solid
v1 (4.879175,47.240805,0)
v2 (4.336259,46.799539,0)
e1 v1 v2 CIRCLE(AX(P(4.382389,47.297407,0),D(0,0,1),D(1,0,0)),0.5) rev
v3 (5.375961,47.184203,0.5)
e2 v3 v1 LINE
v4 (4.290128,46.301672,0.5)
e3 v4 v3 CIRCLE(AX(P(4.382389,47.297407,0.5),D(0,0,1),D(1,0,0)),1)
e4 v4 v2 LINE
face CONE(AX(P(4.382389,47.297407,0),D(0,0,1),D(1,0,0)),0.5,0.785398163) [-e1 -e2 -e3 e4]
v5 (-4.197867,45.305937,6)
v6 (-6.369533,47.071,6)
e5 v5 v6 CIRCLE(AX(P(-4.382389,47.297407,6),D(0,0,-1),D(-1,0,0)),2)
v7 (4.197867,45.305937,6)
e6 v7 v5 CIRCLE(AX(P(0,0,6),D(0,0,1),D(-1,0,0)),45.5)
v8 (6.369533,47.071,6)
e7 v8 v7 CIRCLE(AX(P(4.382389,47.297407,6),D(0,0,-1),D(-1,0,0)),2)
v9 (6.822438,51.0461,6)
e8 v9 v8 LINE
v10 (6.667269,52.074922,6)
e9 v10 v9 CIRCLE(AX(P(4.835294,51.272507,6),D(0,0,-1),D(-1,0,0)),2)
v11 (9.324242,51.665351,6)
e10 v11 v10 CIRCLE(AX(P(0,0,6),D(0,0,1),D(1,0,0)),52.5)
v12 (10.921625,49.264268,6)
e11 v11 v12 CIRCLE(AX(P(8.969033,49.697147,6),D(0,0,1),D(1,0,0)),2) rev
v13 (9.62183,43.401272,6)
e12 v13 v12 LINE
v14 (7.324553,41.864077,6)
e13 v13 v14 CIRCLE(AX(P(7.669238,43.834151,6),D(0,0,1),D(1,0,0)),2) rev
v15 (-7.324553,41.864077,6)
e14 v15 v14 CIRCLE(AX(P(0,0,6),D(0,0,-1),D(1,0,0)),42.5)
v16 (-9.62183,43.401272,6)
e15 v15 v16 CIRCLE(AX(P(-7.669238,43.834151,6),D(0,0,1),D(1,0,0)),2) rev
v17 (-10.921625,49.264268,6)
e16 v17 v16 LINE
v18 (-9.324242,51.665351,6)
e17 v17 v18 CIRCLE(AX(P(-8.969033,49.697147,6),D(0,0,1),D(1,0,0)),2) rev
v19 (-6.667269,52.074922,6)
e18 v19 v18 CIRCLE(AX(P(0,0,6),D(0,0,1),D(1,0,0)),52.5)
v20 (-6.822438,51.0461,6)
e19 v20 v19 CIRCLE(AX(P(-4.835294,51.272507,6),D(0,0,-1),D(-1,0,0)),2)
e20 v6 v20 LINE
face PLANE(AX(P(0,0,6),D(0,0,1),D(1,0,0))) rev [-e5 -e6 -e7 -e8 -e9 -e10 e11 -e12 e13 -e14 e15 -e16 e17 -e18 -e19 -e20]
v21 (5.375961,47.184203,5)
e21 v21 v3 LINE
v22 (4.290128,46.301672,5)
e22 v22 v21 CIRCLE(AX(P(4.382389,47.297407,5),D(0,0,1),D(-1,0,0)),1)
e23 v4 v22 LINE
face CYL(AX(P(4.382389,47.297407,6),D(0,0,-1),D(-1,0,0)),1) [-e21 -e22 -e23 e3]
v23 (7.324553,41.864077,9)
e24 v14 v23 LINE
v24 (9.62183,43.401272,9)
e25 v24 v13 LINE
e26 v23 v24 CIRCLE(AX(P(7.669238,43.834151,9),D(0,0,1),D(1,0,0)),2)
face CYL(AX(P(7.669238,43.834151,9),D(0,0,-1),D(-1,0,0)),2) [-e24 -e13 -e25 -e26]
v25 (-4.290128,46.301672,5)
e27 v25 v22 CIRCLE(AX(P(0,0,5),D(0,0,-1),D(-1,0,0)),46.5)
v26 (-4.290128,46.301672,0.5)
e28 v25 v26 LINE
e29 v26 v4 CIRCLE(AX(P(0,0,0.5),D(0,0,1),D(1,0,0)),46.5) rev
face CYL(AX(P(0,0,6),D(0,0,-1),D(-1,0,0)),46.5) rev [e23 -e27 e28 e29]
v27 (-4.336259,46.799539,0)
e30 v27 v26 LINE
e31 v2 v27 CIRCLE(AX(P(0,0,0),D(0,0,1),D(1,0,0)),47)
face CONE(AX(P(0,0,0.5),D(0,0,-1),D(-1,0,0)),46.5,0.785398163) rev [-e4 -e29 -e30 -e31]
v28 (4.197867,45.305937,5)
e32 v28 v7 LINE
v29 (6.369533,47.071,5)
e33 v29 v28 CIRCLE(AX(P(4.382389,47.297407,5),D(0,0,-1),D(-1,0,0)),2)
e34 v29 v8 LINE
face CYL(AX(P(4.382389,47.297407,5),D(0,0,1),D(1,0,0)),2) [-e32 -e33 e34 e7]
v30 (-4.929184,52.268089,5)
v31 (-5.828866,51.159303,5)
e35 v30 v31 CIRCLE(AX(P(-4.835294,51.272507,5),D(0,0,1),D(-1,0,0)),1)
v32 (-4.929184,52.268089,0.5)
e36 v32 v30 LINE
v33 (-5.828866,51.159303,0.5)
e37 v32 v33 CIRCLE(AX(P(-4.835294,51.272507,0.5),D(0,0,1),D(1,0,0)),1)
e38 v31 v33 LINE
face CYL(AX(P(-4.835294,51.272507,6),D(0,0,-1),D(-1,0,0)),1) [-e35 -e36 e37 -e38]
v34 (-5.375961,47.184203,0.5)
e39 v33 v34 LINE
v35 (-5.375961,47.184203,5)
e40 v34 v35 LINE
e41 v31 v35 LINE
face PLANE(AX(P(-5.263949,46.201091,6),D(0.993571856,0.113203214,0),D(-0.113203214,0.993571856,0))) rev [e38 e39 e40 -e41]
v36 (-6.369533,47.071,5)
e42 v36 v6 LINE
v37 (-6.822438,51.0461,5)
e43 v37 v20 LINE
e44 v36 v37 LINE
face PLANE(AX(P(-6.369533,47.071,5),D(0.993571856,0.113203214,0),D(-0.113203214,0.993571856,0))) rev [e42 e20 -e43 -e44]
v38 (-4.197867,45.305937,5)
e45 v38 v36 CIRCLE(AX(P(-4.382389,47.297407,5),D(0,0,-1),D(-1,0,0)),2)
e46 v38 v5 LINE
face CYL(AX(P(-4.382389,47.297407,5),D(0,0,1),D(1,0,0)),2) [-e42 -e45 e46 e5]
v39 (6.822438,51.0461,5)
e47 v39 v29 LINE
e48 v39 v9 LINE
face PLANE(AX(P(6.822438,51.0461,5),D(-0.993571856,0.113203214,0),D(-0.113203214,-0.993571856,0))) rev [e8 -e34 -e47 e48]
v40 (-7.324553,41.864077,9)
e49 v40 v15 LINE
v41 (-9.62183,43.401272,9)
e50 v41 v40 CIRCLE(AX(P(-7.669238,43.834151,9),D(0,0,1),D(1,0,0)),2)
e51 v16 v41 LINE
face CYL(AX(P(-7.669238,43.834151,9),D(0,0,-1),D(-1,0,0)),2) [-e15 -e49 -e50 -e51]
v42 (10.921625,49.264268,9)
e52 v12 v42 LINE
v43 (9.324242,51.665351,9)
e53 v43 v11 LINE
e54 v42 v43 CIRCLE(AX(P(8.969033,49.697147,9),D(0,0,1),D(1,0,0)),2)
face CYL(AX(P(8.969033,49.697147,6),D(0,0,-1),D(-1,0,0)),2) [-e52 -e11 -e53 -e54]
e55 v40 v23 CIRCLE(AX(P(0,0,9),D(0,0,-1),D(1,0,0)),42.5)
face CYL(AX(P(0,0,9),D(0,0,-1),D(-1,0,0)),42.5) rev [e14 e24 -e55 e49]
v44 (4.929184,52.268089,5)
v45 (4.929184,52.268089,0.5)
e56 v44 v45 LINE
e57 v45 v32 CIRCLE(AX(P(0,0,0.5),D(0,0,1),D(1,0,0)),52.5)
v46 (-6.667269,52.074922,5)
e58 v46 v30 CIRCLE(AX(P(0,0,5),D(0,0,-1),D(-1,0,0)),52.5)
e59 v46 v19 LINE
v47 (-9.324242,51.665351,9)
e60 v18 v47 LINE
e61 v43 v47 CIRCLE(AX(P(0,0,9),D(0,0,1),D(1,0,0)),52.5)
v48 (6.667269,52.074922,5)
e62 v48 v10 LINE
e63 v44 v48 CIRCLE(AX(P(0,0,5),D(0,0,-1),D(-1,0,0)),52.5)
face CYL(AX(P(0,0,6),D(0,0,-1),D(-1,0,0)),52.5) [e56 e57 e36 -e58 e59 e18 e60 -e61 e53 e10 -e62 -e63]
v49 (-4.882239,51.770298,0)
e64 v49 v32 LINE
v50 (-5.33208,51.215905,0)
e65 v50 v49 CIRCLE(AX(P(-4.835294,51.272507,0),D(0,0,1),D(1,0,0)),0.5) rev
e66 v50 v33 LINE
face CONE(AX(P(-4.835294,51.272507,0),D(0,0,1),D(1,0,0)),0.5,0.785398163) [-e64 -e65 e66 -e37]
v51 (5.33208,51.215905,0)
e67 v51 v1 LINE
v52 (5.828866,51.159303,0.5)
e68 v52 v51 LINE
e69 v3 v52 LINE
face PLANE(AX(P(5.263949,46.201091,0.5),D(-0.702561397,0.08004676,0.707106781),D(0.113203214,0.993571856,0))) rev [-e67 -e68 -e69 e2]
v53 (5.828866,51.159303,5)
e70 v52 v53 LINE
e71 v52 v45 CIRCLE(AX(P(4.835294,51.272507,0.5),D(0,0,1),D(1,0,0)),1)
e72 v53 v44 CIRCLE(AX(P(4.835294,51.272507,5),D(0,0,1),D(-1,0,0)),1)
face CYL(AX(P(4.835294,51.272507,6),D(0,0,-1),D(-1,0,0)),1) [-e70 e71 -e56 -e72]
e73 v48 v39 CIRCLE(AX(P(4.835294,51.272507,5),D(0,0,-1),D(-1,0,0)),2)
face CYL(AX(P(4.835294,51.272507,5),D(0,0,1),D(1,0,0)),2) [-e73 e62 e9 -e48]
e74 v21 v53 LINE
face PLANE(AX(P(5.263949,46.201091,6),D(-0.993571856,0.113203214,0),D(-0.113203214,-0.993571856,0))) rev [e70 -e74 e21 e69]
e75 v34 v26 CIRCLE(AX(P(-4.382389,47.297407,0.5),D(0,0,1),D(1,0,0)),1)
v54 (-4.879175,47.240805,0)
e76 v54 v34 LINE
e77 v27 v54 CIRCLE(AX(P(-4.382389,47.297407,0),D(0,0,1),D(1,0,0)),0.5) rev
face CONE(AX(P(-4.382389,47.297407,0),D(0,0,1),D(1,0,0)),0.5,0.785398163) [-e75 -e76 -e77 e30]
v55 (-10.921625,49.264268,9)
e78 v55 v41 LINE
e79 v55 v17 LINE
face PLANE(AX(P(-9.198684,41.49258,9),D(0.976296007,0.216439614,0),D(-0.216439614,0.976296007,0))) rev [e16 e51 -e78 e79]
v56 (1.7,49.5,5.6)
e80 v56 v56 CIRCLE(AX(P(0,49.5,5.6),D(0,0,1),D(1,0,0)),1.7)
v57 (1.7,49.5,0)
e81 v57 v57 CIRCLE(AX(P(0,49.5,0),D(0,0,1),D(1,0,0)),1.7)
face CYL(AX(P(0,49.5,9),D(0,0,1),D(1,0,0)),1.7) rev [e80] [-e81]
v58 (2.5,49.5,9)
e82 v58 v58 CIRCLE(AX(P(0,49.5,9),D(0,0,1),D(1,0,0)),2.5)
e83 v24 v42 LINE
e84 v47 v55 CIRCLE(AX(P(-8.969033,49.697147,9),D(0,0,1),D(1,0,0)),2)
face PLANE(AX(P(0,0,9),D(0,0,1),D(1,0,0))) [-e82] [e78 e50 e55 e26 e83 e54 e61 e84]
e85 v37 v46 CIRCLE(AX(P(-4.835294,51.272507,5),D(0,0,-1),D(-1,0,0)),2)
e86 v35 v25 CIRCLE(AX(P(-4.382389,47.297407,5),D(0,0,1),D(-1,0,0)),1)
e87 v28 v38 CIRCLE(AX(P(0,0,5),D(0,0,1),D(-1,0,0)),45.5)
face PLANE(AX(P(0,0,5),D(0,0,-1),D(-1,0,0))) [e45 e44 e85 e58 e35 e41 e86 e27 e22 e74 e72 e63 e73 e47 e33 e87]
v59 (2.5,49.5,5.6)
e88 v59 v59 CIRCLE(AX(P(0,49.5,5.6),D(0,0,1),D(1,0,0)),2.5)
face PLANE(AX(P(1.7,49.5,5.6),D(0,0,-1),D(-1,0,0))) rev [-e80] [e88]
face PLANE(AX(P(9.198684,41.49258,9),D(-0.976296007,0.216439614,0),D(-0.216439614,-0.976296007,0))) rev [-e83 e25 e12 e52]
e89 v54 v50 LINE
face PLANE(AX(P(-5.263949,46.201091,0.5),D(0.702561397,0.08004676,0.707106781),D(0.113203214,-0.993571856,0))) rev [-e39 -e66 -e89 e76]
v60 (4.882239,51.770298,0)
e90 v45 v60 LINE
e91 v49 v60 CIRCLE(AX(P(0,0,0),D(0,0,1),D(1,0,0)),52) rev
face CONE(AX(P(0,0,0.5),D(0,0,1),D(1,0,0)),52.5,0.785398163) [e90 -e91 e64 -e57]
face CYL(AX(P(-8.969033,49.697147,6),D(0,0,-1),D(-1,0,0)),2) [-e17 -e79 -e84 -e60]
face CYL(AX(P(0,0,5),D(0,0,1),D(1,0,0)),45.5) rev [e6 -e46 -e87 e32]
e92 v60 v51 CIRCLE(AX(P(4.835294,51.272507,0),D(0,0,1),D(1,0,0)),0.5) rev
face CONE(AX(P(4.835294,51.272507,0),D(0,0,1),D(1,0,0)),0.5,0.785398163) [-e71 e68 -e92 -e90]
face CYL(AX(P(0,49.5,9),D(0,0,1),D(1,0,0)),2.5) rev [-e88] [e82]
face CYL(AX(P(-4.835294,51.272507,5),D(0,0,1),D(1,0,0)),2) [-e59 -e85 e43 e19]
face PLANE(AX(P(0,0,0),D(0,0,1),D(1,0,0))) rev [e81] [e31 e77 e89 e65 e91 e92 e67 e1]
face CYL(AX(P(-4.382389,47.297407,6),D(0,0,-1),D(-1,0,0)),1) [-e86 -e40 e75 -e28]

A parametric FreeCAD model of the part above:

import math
import FreeCAD as App
import Part
import Sketcher
Q = App.Units.Quantity


def edges_at(feature, points):
    """Names of the edges that pass closest to the given points."""
    edges = feature.Shape.Edges
    near = lambda p: min(range(len(edges)), key=lambda i: edges[i].distToShape(Part.Vertex(*p))[0])
    return sorted({f"Edge{near(p) + 1}" for p in points})

doc = App.newDocument("Part")
body = doc.addObject("PartDesign::Body", "Body")

# Sketch on XY plane
sketch1 = doc.addObject("Sketcher::SketchObject", "Sketch")
body.addObject(sketch1)
sketch1.AttachmentSupport = (doc.XY_Plane, [""])
sketch1.MapMode = "FlatFace"
sketch1.addGeometry(Part.LineSegment(App.Vector(-6, 52, 0), App.Vector(-5, 46, 0)), False)
sketch1.addGeometry(Part.ArcOfCircle(Part.Circle(App.Vector(0, 0, 0), App.Vector(0, 0, 1), 47), math.radians(83.5), math.radians(96.5)), False)
sketch1.addGeometry(Part.LineSegment(App.Vector(5, 46, 0), App.Vector(6, 52, 0)), False)
sketch1.addGeometry(Part.ArcOfCircle(Part.Circle(App.Vector(0, 0, 0), App.Vector(0, 0, 1), 52), math.radians(83.5), math.radians(96.5)), False)
sketch1.addConstraint(Sketcher.Constraint("Coincident", 0, 2, 1, 2))
sketch1.addConstraint(Sketcher.Constraint("Coincident", 1, 1, 2, 1))
sketch1.addConstraint(Sketcher.Constraint("Coincident", 2, 2, 3, 1))
sketch1.addConstraint(Sketcher.Constraint("Coincident", 3, 2, 0, 1))
sketch1.addConstraint(Sketcher.Constraint("Coincident", 1, 3, -1, 1))
sketch1.addConstraint(Sketcher.Constraint("Coincident", 3, 3, -1, 1))
sketch1.addConstraint(Sketcher.Constraint("Horizontal", 0, 2, 1, 1))
sketch1.addConstraint(Sketcher.Constraint("Horizontal", 2, 2, 3, 2))
sketch1.addConstraint(Sketcher.Constraint("Radius", 1, 46.5))
sketch1.addConstraint(Sketcher.Constraint("Radius", 3, 52.5))
sketch1.addConstraint(Sketcher.Constraint("Angle", 0, Q("-83.5 deg")))
sketch1.addConstraint(Sketcher.Constraint("DistanceX", 0, 2, 1, 1, 10.527899))
pad1 = doc.addObject("PartDesign::Pad", "Pad")
body.addObject(pad1)
pad1.Profile = sketch1
pad1.Length = 6
doc.recompute()

fillet = doc.addObject("PartDesign::Fillet", "Fillet")
body.addObject(fillet)
fillet.Base = (pad1, edges_at(pad1, [
    (5.943, 52.163, 3),
    (5.264, 46.201, 3),
    (-5.264, 46.201, 3),
    (-5.943, 52.163, 3),
]))
fillet.Radius = 1

# Sketch on XY plane
sketch2 = doc.addObject("Sketcher::SketchObject", "Sketch001")
body.addObject(sketch2)
sketch2.AttachmentSupport = (doc.XY_Plane, [""])
sketch2.MapMode = "FlatFace"
sketch2.AttachmentOffset = App.Placement(App.Vector(0, 0, 6), App.Rotation())
sketch2.addGeometry(Part.LineSegment(App.Vector(-11, 51, 0), App.Vector(-9, 41, 0)), False)
sketch2.addGeometry(Part.ArcOfCircle(Part.Circle(App.Vector(0, 0, 0), App.Vector(0, 0, 1), 43), math.radians(78), math.radians(102)), False)
sketch2.addGeometry(Part.LineSegment(App.Vector(9, 41, 0), App.Vector(11, 51, 0)), False)
sketch2.addGeometry(Part.ArcOfCircle(Part.Circle(App.Vector(0, 0, 0), App.Vector(0, 0, 1), 53), math.radians(78), math.radians(102)), False)
sketch2.addConstraint(Sketcher.Constraint("Coincident", 0, 2, 1, 2))
sketch2.addConstraint(Sketcher.Constraint("Coincident", 1, 1, 2, 1))
sketch2.addConstraint(Sketcher.Constraint("Coincident", 2, 2, 3, 1))
sketch2.addConstraint(Sketcher.Constraint("Coincident", 3, 2, 0, 1))
sketch2.addConstraint(Sketcher.Constraint("Coincident", 1, 3, -1, 1))
sketch2.addConstraint(Sketcher.Constraint("Coincident", 3, 3, -1, 1))
sketch2.addConstraint(Sketcher.Constraint("Horizontal", 0, 2, 1, 1))
sketch2.addConstraint(Sketcher.Constraint("Horizontal", 2, 2, 3, 2))
sketch2.addConstraint(Sketcher.Constraint("Radius", 1, 42.5))
sketch2.addConstraint(Sketcher.Constraint("Radius", 3, 52.5))
sketch2.addConstraint(Sketcher.Constraint("Angle", 0, Q("-77.5 deg")))
sketch2.addConstraint(Sketcher.Constraint("DistanceY", -1, 1, 0, 2, 41.49258))
pad2 = doc.addObject("PartDesign::Pad", "Pad001")
body.addObject(pad2)
pad2.Profile = sketch2
pad2.Length = 3
doc.recompute()

fillet2 = doc.addObject("PartDesign::Fillet", "Fillet001")
body.addObject(fillet2)
fillet2.Base = (pad2, edges_at(pad2, [
    (11.363, 51.256, 7.5),
    (-11.363, 51.256, 7.5),
    (-9.199, 41.493, 7.5),
    (9.199, 41.493, 7.5),
]))
fillet2.Radius = 2

# Sketch on XY plane
sketch3 = doc.addObject("Sketcher::SketchObject", "Sketch002")
body.addObject(sketch3)
sketch3.AttachmentSupport = (doc.XY_Plane, [""])
sketch3.MapMode = "FlatFace"
sketch3.AttachmentOffset = App.Placement(App.Vector(0, 0, 9), App.Rotation())
sketch3.addGeometry(Part.Circle(App.Vector(0, 49.5, 0), App.Vector(0, 0, 1), 1.7), False)
sketch3.addConstraint(Sketcher.Constraint("PointOnObject", 0, 3, -2))
sketch3.addConstraint(Sketcher.Constraint("Diameter", 0, 3.4))
sketch3.addConstraint(Sketcher.Constraint("DistanceY", -1, 1, 0, 3, 49.5))
doc.recompute()
hole = doc.addObject("PartDesign::Hole", "Hole")
body.addObject(hole)
hole.Profile = sketch3
hole.ThreadType = "None"
hole.Diameter = 3.4
hole.DepthType = "ThroughAll"
hole.HoleCutType = "Counterbore"
hole.HoleCutDiameter = 5
hole.HoleCutDepth = 3.4

# Sketch on XY plane
sketch4 = doc.addObject("Sketcher::SketchObject", "Sketch003")
body.addObject(sketch4)
sketch4.AttachmentSupport = (doc.XY_Plane, [""])
sketch4.MapMode = "FlatFace"
sketch4.AttachmentOffset = App.Placement(App.Vector(0, 0, 6), App.Rotation())
sketch4.addGeometry(Part.LineSegment(App.Vector(6.8, 51, 0), App.Vector(6.4, 47.1, 0)), False)
sketch4.addGeometry(Part.ArcOfCircle(Part.Circle(App.Vector(4.4, 47.3, 0), App.Vector(0, 0, 1), 2), math.radians(-95), math.radians(-7)), False)
sketch4.addGeometry(Part.ArcOfCircle(Part.Circle(App.Vector(0, 0, 0), App.Vector(0, 0, 1), 45.5), math.radians(84.71), math.radians(95.29)), False)
sketch4.addGeometry(Part.ArcOfCircle(Part.Circle(App.Vector(-4.4, 47.3, 0), App.Vector(0, 0, 1), 2), math.radians(-173), math.radians(-85)), False)
sketch4.addGeometry(Part.LineSegment(App.Vector(-6.4, 47.1, 0), App.Vector(-6.8, 51, 0)), False)
sketch4.addGeometry(Part.ArcOfCircle(Part.Circle(App.Vector(-4.8, 51.3, 0), App.Vector(0, 0, 1), 2), math.radians(156), math.radians(186)), False)
sketch4.addGeometry(Part.ArcOfCircle(Part.Circle(App.Vector(0, 0, 0), App.Vector(0, 0, 1), 52.5), math.radians(95.39), math.radians(97.3)), False)
sketch4.addGeometry(Part.ArcOfCircle(Part.Circle(App.Vector(-4.8, 51.3, 0), App.Vector(0, 0, 1), 1), math.radians(95), math.radians(187)), False)
sketch4.addGeometry(Part.LineSegment(App.Vector(-5.8, 51.2, 0), App.Vector(-5.4, 47.2, 0)), False)
sketch4.addGeometry(Part.ArcOfCircle(Part.Circle(App.Vector(-4.4, 47.3, 0), App.Vector(0, 0, 1), 1), math.radians(-173), math.radians(-85)), False)
sketch4.addGeometry(Part.ArcOfCircle(Part.Circle(App.Vector(0, 0, 0), App.Vector(0, 0, 1), 46.5), math.radians(84.71), math.radians(95.29)), False)
sketch4.addGeometry(Part.ArcOfCircle(Part.Circle(App.Vector(4.4, 47.3, 0), App.Vector(0, 0, 1), 1), math.radians(-95), math.radians(-7)), False)
sketch4.addGeometry(Part.LineSegment(App.Vector(5.4, 47.2, 0), App.Vector(5.8, 51.2, 0)), False)
sketch4.addGeometry(Part.ArcOfCircle(Part.Circle(App.Vector(4.8, 51.3, 0), App.Vector(0, 0, 1), 1), math.radians(-7), math.radians(85)), False)
sketch4.addGeometry(Part.ArcOfCircle(Part.Circle(App.Vector(0, 0, 0), App.Vector(0, 0, 1), 52.5), math.radians(82.7), math.radians(84.61)), False)
sketch4.addGeometry(Part.ArcOfCircle(Part.Circle(App.Vector(4.8, 51.3, 0), App.Vector(0, 0, 1), 2), math.radians(-6), math.radians(24)), False)
sketch4.addConstraint(Sketcher.Constraint("Tangent", 0, 2, 1, 2))
sketch4.addConstraint(Sketcher.Constraint("Tangent", 1, 1, 2, 1))
sketch4.addConstraint(Sketcher.Constraint("Tangent", 2, 2, 3, 2))
sketch4.addConstraint(Sketcher.Constraint("Tangent", 3, 1, 4, 1))
sketch4.addConstraint(Sketcher.Constraint("Tangent", 4, 2, 5, 2))
sketch4.addConstraint(Sketcher.Constraint("Coincident", 5, 1, 6, 2))
sketch4.addConstraint(Sketcher.Constraint("Tangent", 6, 1, 7, 1))
sketch4.addConstraint(Sketcher.Constraint("Tangent", 7, 2, 8, 1))
sketch4.addConstraint(Sketcher.Constraint("Tangent", 8, 2, 9, 1))
sketch4.addConstraint(Sketcher.Constraint("Tangent", 9, 2, 10, 2))
sketch4.addConstraint(Sketcher.Constraint("Tangent", 10, 1, 11, 1))
sketch4.addConstraint(Sketcher.Constraint("Tangent", 11, 2, 12, 1))
sketch4.addConstraint(Sketcher.Constraint("Tangent", 12, 2, 13, 1))
sketch4.addConstraint(Sketcher.Constraint("Tangent", 13, 2, 14, 2))
sketch4.addConstraint(Sketcher.Constraint("Coincident", 14, 1, 15, 2))
sketch4.addConstraint(Sketcher.Constraint("Tangent", 15, 1, 0, 1))
sketch4.addConstraint(Sketcher.Constraint("Coincident", 2, 3, -1, 1))
sketch4.addConstraint(Sketcher.Constraint("Coincident", 6, 3, -1, 1))
sketch4.addConstraint(Sketcher.Constraint("Coincident", 10, 3, -1, 1))
sketch4.addConstraint(Sketcher.Constraint("Coincident", 14, 3, -1, 1))
sketch4.addConstraint(Sketcher.Constraint("Coincident", 7, 3, 5, 3))
sketch4.addConstraint(Sketcher.Constraint("Coincident", 9, 3, 3, 3))
sketch4.addConstraint(Sketcher.Constraint("Coincident", 11, 3, 1, 3))
sketch4.addConstraint(Sketcher.Constraint("Coincident", 15, 3, 13, 3))
sketch4.addConstraint(Sketcher.Constraint("Equal", 1, 3))
sketch4.addConstraint(Sketcher.Constraint("Equal", 3, 5))
sketch4.addConstraint(Sketcher.Constraint("Equal", 7, 9))
sketch4.addConstraint(Sketcher.Constraint("Equal", 11, 13))
sketch4.addConstraint(Sketcher.Constraint("Equal", 6, 14))
sketch4.addConstraint(Sketcher.Constraint("Equal", 5, 15))
sketch4.addConstraint(Sketcher.Constraint("Symmetric", 0, 2, 3, 1, -2))
sketch4.addConstraint(Sketcher.Constraint("Radius", 1, 2.0))
sketch4.addConstraint(Sketcher.Constraint("Radius", 7, 1.0))
sketch4.addConstraint(Sketcher.Constraint("Radius", 2, 45.5))
sketch4.addConstraint(Sketcher.Constraint("Angle", 0, Q("-96.5 deg")))
sketch4.addConstraint(Sketcher.Constraint("DistanceY", -1, 1, 0, 2, 47.071))
sketch4.addConstraint(Sketcher.Constraint("Radius", 6, 52.499998))
pad3 = doc.addObject("PartDesign::Pad", "Pad002")
body.addObject(pad3)
pad3.Profile = sketch4
pad3.Length = 1
pad3.Reversed = True
doc.recompute()

chamfer = doc.addObject("PartDesign::Chamfer", "Chamfer")
body.addObject(chamfer)
chamfer.Base = (pad3, edges_at(pad3, [
    (0, 46.5, 0),
    (0, 52.5, 0),
    (5.602, 49.172, 0),
    (-5.602, 49.172, 0),
    (-5.612, 51.903, 0),
    (5.612, 51.903, 0),
    (5.013, 46.521, 0),
    (-5.013, 46.521, 0),
]))
chamfer.Size = 0.5

doc.recompute()
